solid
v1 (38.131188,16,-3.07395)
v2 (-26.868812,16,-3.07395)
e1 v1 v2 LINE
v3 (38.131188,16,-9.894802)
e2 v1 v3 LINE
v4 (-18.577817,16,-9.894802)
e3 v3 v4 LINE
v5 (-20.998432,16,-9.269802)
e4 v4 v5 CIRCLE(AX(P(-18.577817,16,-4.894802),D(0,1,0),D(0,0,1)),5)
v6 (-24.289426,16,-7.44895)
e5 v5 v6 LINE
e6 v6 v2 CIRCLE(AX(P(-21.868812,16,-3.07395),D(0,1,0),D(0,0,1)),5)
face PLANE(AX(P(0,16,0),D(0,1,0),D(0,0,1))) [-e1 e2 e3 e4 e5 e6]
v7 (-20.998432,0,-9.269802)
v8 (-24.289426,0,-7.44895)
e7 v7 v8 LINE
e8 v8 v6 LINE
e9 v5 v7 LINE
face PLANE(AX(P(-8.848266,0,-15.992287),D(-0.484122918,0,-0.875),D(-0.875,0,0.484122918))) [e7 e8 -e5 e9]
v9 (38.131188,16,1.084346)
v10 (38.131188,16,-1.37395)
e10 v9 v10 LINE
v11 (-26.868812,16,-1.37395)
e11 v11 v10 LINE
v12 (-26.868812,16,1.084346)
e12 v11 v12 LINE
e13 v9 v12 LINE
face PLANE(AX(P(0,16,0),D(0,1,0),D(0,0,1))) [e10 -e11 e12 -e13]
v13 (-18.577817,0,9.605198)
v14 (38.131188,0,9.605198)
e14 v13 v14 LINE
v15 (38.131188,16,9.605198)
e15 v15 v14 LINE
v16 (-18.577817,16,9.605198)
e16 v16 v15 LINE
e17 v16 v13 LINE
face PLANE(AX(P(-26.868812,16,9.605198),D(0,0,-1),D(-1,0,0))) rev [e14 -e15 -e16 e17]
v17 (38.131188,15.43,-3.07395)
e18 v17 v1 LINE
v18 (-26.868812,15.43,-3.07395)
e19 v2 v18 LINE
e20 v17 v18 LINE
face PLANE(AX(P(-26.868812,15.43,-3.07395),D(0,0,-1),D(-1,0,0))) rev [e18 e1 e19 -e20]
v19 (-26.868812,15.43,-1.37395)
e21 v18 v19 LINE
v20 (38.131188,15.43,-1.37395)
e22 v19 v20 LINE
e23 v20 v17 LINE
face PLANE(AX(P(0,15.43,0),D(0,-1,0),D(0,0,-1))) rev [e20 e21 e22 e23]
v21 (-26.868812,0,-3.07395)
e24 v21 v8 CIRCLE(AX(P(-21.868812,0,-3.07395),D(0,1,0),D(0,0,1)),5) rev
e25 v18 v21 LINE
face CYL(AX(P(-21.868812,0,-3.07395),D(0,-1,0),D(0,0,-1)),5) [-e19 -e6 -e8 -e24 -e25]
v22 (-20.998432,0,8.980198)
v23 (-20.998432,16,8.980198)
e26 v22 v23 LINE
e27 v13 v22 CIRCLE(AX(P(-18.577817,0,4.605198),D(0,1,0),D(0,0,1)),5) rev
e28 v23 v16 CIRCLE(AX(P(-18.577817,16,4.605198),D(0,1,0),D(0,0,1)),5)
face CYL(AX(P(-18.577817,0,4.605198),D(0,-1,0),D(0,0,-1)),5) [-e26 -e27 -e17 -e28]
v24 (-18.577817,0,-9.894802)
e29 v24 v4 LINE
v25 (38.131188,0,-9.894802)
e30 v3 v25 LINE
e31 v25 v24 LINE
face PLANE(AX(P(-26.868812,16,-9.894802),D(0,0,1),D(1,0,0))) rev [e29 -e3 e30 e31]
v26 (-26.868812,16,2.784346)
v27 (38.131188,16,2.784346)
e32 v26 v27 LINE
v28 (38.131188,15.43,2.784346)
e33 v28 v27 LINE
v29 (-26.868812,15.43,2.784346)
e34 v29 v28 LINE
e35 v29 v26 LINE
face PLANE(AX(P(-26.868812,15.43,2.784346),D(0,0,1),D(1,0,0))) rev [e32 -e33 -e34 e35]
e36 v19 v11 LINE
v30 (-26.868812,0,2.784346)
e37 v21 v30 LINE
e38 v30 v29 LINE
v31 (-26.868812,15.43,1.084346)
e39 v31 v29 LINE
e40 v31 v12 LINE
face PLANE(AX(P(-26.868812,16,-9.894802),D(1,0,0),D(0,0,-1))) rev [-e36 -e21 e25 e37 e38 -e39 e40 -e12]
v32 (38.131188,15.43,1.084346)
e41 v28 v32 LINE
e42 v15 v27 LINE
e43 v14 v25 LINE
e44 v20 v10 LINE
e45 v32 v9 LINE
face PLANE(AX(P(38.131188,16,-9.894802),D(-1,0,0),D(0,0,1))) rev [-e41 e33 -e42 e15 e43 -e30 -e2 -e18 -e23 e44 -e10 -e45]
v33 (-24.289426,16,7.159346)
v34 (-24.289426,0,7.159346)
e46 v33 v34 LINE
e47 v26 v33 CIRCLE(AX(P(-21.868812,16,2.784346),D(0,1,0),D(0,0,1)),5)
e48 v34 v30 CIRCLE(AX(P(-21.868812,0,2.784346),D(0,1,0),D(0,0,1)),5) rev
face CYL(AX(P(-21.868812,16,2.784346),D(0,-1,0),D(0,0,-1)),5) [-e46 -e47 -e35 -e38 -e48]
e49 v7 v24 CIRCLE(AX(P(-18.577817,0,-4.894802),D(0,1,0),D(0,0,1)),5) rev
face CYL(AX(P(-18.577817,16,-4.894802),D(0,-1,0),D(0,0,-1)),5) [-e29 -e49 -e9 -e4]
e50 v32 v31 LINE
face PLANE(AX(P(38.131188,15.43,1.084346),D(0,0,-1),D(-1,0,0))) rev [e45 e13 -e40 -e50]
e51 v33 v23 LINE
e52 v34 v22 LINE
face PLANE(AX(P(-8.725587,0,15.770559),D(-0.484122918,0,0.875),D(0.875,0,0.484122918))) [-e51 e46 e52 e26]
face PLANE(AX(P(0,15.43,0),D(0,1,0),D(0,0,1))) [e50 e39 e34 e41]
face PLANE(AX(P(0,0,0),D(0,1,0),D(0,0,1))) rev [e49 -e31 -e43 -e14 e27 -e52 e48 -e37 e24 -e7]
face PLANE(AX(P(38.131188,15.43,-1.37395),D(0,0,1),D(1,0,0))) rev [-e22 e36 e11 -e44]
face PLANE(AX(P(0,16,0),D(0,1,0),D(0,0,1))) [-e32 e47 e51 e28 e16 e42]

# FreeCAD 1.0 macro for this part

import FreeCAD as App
import Part
import Sketcher

V = App.Vector
Q = App.Units.Quantity


def edges_at(feature, points):
    """Names of the edges that pass closest to the given points."""
    edges = feature.Shape.Edges
    near = lambda p: min(range(len(edges)), key=lambda i: edges[i].distToShape(Part.Vertex(*p))[0])
    return sorted({f"Edge{near(p) + 1}" for p in points})

doc = App.newDocument("Part")
params = doc.addObject("Spreadsheet::Sheet", "Params")
for row, (alias, value) in enumerate([
    ("sketch1_width", "65 mm"),
    ("sketch1_height", "19.5 mm"),
    ("pad1_length", "16 mm"),
    ("sketch2_width", "7 mm"),
    ("sketch2_length", "8 mm"),
    ("pocket1_length", "16 mm"),
    ("fillet_radius", "5 mm"),
    ("sketch3_width", "65 mm"),
    ("sketch3_height", "1.7 mm"),
    ("pocket2_length", "0.57 mm"),
], start=1):
    params.set(f"A{row}", alias)
    params.set(f"B{row}", "=" + value)
    params.setAlias(f"B{row}", alias)

body = doc.addObject("PartDesign::Body", "Body")

sketch1 = body.newObject("Sketcher::SketchObject", "Sketch")
sketch1.AttachmentSupport = (doc.getObject("XZ_Plane"), [""])
sketch1.MapMode = "FlatFace"
sketch1.addGeometry(Part.LineSegment(V(-27, -10, 0), V(-27, 10, 0)), False)
sketch1.addGeometry(Part.LineSegment(V(-27, 10, 0), V(38, 10, 0)), False)
sketch1.addGeometry(Part.LineSegment(V(38, 10, 0), V(38, -10, 0)), False)
sketch1.addGeometry(Part.LineSegment(V(38, -10, 0), V(-27, -10, 0)), False)
sketch1.addConstraint(Sketcher.Constraint("Coincident", 0, 2, 1, 1))
sketch1.addConstraint(Sketcher.Constraint("Coincident", 1, 2, 2, 1))
sketch1.addConstraint(Sketcher.Constraint("Coincident", 2, 2, 3, 1))
sketch1.addConstraint(Sketcher.Constraint("Coincident", 3, 2, 0, 1))
sketch1.addConstraint(Sketcher.Constraint("Vertical", 0))
sketch1.addConstraint(Sketcher.Constraint("Horizontal", 1))
sketch1.addConstraint(Sketcher.Constraint("Vertical", 2))
sketch1.addConstraint(Sketcher.Constraint("Horizontal", 3))
sketch1.addConstraint(Sketcher.Constraint("DistanceX", 1, 1, 1, 2, Q("65 mm")))
sketch1.addConstraint(Sketcher.Constraint("DistanceY", 0, 1, 0, 2, Q("19.5 mm")))
sketch1.addConstraint(Sketcher.Constraint("DistanceY", -1, 1, 0, 2, Q("9.605198 mm")))
sketch1.addConstraint(Sketcher.Constraint("DistanceX", 0, 2, -1, 1, Q("26.868812 mm")))
sketch1.setExpression("Constraints[8]", "Params.sketch1_width")
sketch1.setExpression("Constraints[9]", "Params.sketch1_height")
pad1 = body.newObject("PartDesign::Pad", "Pad")
pad1.Profile = sketch1
pad1.setExpression("Length", "Params.pad1_length")
pad1.Reversed = True

sketch2 = body.newObject("Sketcher::SketchObject", "Sketch001")
sketch2.AttachmentSupport = (doc.getObject("XZ_Plane"), [""])
sketch2.MapMode = "FlatFace"
sketch2.AttachmentOffset = App.Placement(V(0, 0, -16), App.Rotation())
sketch2.addGeometry(Part.LineSegment(V(-26.9, -6, 0), V(-19.9, -9.9, 0)), False)
sketch2.addGeometry(Part.LineSegment(V(-19.9, -9.9, 0), V(-26.9, -9.9, 0)), False)
sketch2.addGeometry(Part.LineSegment(V(-26.9, -9.9, 0), V(-26.9, -6, 0)), False)
sketch2.addGeometry(Part.LineSegment(V(-26.9, 9.6, 0), V(-19.9, 9.6, 0)), False)
sketch2.addGeometry(Part.LineSegment(V(-19.9, 9.6, 0), V(-26.9, 5.7, 0)), False)
sketch2.addGeometry(Part.LineSegment(V(-26.9, 5.7, 0), V(-26.9, 9.6, 0)), False)
sketch2.addConstraint(Sketcher.Constraint("Coincident", 0, 2, 1, 1))
sketch2.addConstraint(Sketcher.Constraint("Coincident", 1, 2, 2, 1))
sketch2.addConstraint(Sketcher.Constraint("Coincident", 2, 2, 0, 1))
sketch2.addConstraint(Sketcher.Constraint("Coincident", 3, 2, 4, 1))
sketch2.addConstraint(Sketcher.Constraint("Coincident", 4, 2, 5, 1))
sketch2.addConstraint(Sketcher.Constraint("Coincident", 5, 2, 3, 1))
sketch2.addConstraint(Sketcher.Constraint("Horizontal", 1))
sketch2.addConstraint(Sketcher.Constraint("Vertical", 2))
sketch2.addConstraint(Sketcher.Constraint("Horizontal", 3))
sketch2.addConstraint(Sketcher.Constraint("Vertical", 5))
sketch2.addConstraint(Sketcher.Constraint("Vertical", 0, 2, 3, 2))
sketch2.addConstraint(Sketcher.Constraint("Vertical", 2, 2, 4, 2))
sketch2.addConstraint(Sketcher.Constraint("Equal", 2, 5))
sketch2.addConstraint(Sketcher.Constraint("DistanceX", 1, 2, 1, 1, Q("7 mm")))
sketch2.addConstraint(Sketcher.Constraint("Distance", 0, Q("8 mm")))
sketch2.addConstraint(Sketcher.Constraint("DistanceY", 0, 2, 3, 2, Q("19.5 mm")))
sketch2.addConstraint(Sketcher.Constraint("DistanceY", 0, 2, -1, 1, Q("9.894802 mm")))
sketch2.addConstraint(Sketcher.Constraint("DistanceX", 0, 2, -1, 1, Q("19.868812 mm")))
sketch2.setExpression("Constraints[13]", "Params.sketch2_width")
sketch2.setExpression("Constraints[14]", "Params.sketch2_length")
pocket1 = body.newObject("PartDesign::Pocket", "Pocket")
pocket1.Profile = sketch2
pocket1.setExpression("Length", "Params.pocket1_length")
pocket1.Reversed = True
doc.recompute()

fillet = body.newObject("PartDesign::Fillet", "Fillet")
fillet.Base = (pocket1, edges_at(pocket1, [
    (-19.869, 8, -9.895),
    (-26.869, 8, -6.022),
    (-26.869, 8, 5.732),
    (-19.869, 8, 9.605),
]))
fillet.setExpression("Radius", "Params.fillet_radius")

sketch3 = body.newObject("Sketcher::SketchObject", "Sketch002")
sketch3.AttachmentSupport = (doc.getObject("XZ_Plane"), [""])
sketch3.MapMode = "FlatFace"
sketch3.AttachmentOffset = App.Placement(V(0, 0, -16), App.Rotation())
sketch3.addGeometry(Part.LineSegment(V(-26.9, -3.1, 0), V(-26.9, -1.4, 0)), False)
sketch3.addGeometry(Part.LineSegment(V(-26.9, -1.4, 0), V(38.1, -1.4, 0)), False)
sketch3.addGeometry(Part.LineSegment(V(38.1, -1.4, 0), V(38.1, -3.1, 0)), False)
sketch3.addGeometry(Part.LineSegment(V(38.1, -3.1, 0), V(-26.9, -3.1, 0)), False)
sketch3.addGeometry(Part.LineSegment(V(-26.9, 1.1, 0), V(-26.9, 2.8, 0)), False)
sketch3.addGeometry(Part.LineSegment(V(-26.9, 2.8, 0), V(38.1, 2.8, 0)), False)
sketch3.addGeometry(Part.LineSegment(V(38.1, 2.8, 0), V(38.1, 1.1, 0)), False)
sketch3.addGeometry(Part.LineSegment(V(38.1, 1.1, 0), V(-26.9, 1.1, 0)), False)
sketch3.addConstraint(Sketcher.Constraint("Coincident", 0, 2, 1, 1))
sketch3.addConstraint(Sketcher.Constraint("Coincident", 1, 2, 2, 1))
sketch3.addConstraint(Sketcher.Constraint("Coincident", 2, 2, 3, 1))
sketch3.addConstraint(Sketcher.Constraint("Coincident", 3, 2, 0, 1))
sketch3.addConstraint(Sketcher.Constraint("Coincident", 4, 2, 5, 1))
sketch3.addConstraint(Sketcher.Constraint("Coincident", 5, 2, 6, 1))
sketch3.addConstraint(Sketcher.Constraint("Coincident", 6, 2, 7, 1))
sketch3.addConstraint(Sketcher.Constraint("Coincident", 7, 2, 4, 1))
sketch3.addConstraint(Sketcher.Constraint("Vertical", 0))
sketch3.addConstraint(Sketcher.Constraint("Horizontal", 1))
sketch3.addConstraint(Sketcher.Constraint("Vertical", 2))
sketch3.addConstraint(Sketcher.Constraint("Horizontal", 3))
sketch3.addConstraint(Sketcher.Constraint("Vertical", 4))
sketch3.addConstraint(Sketcher.Constraint("Horizontal", 5))
sketch3.addConstraint(Sketcher.Constraint("Vertical", 6))
sketch3.addConstraint(Sketcher.Constraint("Horizontal", 7))
sketch3.addConstraint(Sketcher.Constraint("Vertical", 3, 2, 4, 2))
sketch3.addConstraint(Sketcher.Constraint("Vertical", 2, 2, 5, 2))
sketch3.addConstraint(Sketcher.Constraint("Equal", 2, 4))
sketch3.addConstraint(Sketcher.Constraint("DistanceX", 1, 1, 1, 2, Q("65 mm")))
sketch3.addConstraint(Sketcher.Constraint("DistanceY", 0, 1, 0, 2, Q("1.7 mm")))
sketch3.addConstraint(Sketcher.Constraint("DistanceX", 0, 2, -1, 1, Q("26.868812 mm")))
sketch3.addConstraint(Sketcher.Constraint("DistanceY", 0, 2, -1, 1, Q("1.37395 mm")))
sketch3.addConstraint(Sketcher.Constraint("DistanceY", -1, 1, 4, 2, Q("2.784346 mm")))
sketch3.setExpression("Constraints[19]", "Params.sketch3_width")
sketch3.setExpression("Constraints[20]", "Params.sketch3_height")
pocket2 = body.newObject("PartDesign::Pocket", "Pocket001")
pocket2.Profile = sketch3
pocket2.setExpression("Length", "Params.pocket2_length")
pocket2.Reversed = True

doc.recompute()
